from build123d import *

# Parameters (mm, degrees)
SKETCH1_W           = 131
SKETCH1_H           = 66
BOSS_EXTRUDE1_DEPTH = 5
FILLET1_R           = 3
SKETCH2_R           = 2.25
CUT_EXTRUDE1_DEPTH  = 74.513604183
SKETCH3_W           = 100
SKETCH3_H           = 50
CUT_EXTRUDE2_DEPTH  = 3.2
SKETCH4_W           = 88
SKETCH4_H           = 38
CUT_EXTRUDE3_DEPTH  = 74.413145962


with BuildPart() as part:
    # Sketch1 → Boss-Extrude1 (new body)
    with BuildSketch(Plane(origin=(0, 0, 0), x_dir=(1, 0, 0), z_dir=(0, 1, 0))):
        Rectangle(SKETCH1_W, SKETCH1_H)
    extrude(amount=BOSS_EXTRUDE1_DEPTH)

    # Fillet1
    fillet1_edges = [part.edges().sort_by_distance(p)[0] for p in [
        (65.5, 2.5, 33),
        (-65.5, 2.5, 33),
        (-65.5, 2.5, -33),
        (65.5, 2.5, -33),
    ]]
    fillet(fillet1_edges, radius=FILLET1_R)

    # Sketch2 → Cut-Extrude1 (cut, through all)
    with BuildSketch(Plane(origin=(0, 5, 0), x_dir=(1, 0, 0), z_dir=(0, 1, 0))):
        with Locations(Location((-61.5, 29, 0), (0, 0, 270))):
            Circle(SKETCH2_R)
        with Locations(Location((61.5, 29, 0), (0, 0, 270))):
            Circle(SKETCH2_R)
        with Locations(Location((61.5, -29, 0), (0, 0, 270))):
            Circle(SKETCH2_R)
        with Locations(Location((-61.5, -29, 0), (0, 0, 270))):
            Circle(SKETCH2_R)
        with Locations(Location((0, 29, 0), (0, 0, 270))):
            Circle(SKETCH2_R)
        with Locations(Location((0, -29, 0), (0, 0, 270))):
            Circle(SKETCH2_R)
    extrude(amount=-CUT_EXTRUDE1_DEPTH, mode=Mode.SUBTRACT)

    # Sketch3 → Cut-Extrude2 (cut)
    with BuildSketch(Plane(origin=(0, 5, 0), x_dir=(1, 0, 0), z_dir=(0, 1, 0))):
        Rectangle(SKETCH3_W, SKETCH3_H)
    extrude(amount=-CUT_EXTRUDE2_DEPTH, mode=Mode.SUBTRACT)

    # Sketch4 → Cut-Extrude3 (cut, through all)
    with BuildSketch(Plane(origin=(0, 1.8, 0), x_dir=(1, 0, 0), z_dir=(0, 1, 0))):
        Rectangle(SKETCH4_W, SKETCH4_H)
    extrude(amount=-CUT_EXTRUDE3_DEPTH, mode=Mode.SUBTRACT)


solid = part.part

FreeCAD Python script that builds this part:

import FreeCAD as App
import Part
import Sketcher

V = App.Vector
Q = App.Units.Quantity


def edges_at(feature, points):
    """Names of the edges that pass closest to the given points."""
    edges = feature.Shape.Edges
    near = lambda p: min(range(len(edges)), key=lambda i: edges[i].distToShape(Part.Vertex(*p))[0])
    return sorted({f"Edge{near(p) + 1}" for p in points})


def add_polygon(sketch, points):
    """Adds a closed chain of lines whose ends are joined by coincident constraints."""
    first, n = sketch.GeometryCount, len(points)
    for a, b in zip(points, points[1:] + points[:1]):
        sketch.addGeometry(Part.LineSegment(App.Vector(*a, 0), App.Vector(*b, 0)), False)
    for i in range(n):
        sketch.addConstraint(Sketcher.Constraint("Coincident", first + i, 2, first + (i + 1) % n, 1))

doc = App.newDocument("Part")
body = doc.addObject("PartDesign::Body", "Body")

# Sketch on XZ plane
sketch1 = body.newObject("Sketcher::SketchObject", "Sketch")
sketch1.AttachmentSupport = (doc.getObject("XZ_Plane"), [""])
sketch1.MapMode = "FlatFace"
add_polygon(sketch1, [(-66, -33), (-66, 33), (66, 33), (66, -33)])  # lines 0-3
sketch1.addConstraint(Sketcher.Constraint("Vertical", 0))
sketch1.addConstraint(Sketcher.Constraint("Horizontal", 1))
sketch1.addConstraint(Sketcher.Constraint("Vertical", 2))
sketch1.addConstraint(Sketcher.Constraint("Horizontal", 3))
sketch1.addConstraint(Sketcher.Constraint("Symmetric", 0, 2, 2, 2, -1, 1))
sketch1.addConstraint(Sketcher.Constraint("DistanceX", 1, 1, 1, 2, Q("131 mm")))
sketch1.addConstraint(Sketcher.Constraint("DistanceY", 0, 1, 0, 2, Q("66 mm")))
pad1 = body.newObject("PartDesign::Pad", "Pad")
pad1.Profile = sketch1
pad1.Length = 5
pad1.Reversed = True
doc.recompute()

fillet = body.newObject("PartDesign::Fillet", "Fillet")
fillet.Base = (pad1, edges_at(pad1, [
    (65.5, 2.5, 33),
    (-65.5, 2.5, 33),
    (-65.5, 2.5, -33),
    (65.5, 2.5, -33),
]))
fillet.Radius = 3

# Sketch on XZ plane
sketch2 = body.newObject("Sketcher::SketchObject", "Sketch001")
sketch2.AttachmentSupport = (doc.getObject("XZ_Plane"), [""])
sketch2.MapMode = "FlatFace"
sketch2.AttachmentOffset = App.Placement(V(0, 0, -5), App.Rotation())
sketch2.addGeometry(Part.Circle(V(-61.5, -29, 0), V(0, 0, 1), 2.2), False)
sketch2.addGeometry(Part.Circle(V(61.5, -29, 0), V(0, 0, 1), 2.2), False)
sketch2.addGeometry(Part.Circle(V(61.5, 29, 0), V(0, 0, 1), 2.2), False)
sketch2.addGeometry(Part.Circle(V(-61.5, 29, 0), V(0, 0, 1), 2.2), False)
sketch2.addGeometry(Part.Circle(V(0, -29, 0), V(0, 0, 1), 2.2), False)
sketch2.addGeometry(Part.Circle(V(0, 29, 0), V(0, 0, 1), 2.2), False)
sketch2.addConstraint(Sketcher.Constraint("Equal", 0, 1))
sketch2.addConstraint(Sketcher.Constraint("Equal", 1, 2))
sketch2.addConstraint(Sketcher.Constraint("Equal", 2, 3))
sketch2.addConstraint(Sketcher.Constraint("Equal", 3, 4))
sketch2.addConstraint(Sketcher.Constraint("Equal", 4, 5))
sketch2.addConstraint(Sketcher.Constraint("Symmetric", 0, 3, 2, 3, -1, 1))
sketch2.addConstraint(Sketcher.Constraint("Symmetric", 1, 3, 3, 3, -1, 1))
sketch2.addConstraint(Sketcher.Constraint("Symmetric", 4, 3, 5, 3, -1, 1))
sketch2.addConstraint(Sketcher.Constraint("Symmetric", 0, 3, 1, 3, -2))
sketch2.addConstraint(Sketcher.Constraint("PointOnObject", 4, 3, -2))
sketch2.addConstraint(Sketcher.Constraint("Horizontal", 1, 3, 4, 3))
sketch2.addConstraint(Sketcher.Constraint("Diameter", 0, Q("4.5 mm")))
sketch2.addConstraint(Sketcher.Constraint("DistanceY", 0, 3, -1, 1, Q("29 mm")))
sketch2.addConstraint(Sketcher.Constraint("DistanceX", 0, 3, 1, 3, Q("123 mm")))
pocket1 = body.newObject("PartDesign::Pocket", "Pocket")
pocket1.Profile = sketch2
pocket1.Type = "ThroughAll"
pocket1.Reversed = True

# Sketch on XZ plane
sketch3 = body.newObject("Sketcher::SketchObject", "Sketch002")
sketch3.AttachmentSupport = (doc.getObject("XZ_Plane"), [""])
sketch3.MapMode = "FlatFace"
sketch3.AttachmentOffset = App.Placement(V(0, 0, -5), App.Rotation())
add_polygon(sketch3, [(-50, -25), (-50, 25), (50, 25), (50, -25)])  # lines 0-3
sketch3.addConstraint(Sketcher.Constraint("Vertical", 0))
sketch3.addConstraint(Sketcher.Constraint("Horizontal", 1))
sketch3.addConstraint(Sketcher.Constraint("Vertical", 2))
sketch3.addConstraint(Sketcher.Constraint("Horizontal", 3))
sketch3.addConstraint(Sketcher.Constraint("Symmetric", 0, 2, 2, 2, -1, 1))
sketch3.addConstraint(Sketcher.Constraint("DistanceX", 1, 1, 1, 2, Q("100 mm")))
sketch3.addConstraint(Sketcher.Constraint("DistanceY", 0, 1, 0, 2, Q("50 mm")))
pocket2 = body.newObject("PartDesign::Pocket", "Pocket001")
pocket2.Profile = sketch3
pocket2.Length = 3.2
pocket2.Reversed = True

# Sketch on XZ plane
sketch4 = body.newObject("Sketcher::SketchObject", "Sketch003")
sketch4.AttachmentSupport = (doc.getObject("XZ_Plane"), [""])
sketch4.MapMode = "FlatFace"
sketch4.AttachmentOffset = App.Placement(V(0, 0, -1.8), App.Rotation())
add_polygon(sketch4, [(-44, -19), (-44, 19), (44, 19), (44, -19)])  # lines 0-3
sketch4.addConstraint(Sketcher.Constraint("Vertical", 0))
sketch4.addConstraint(Sketcher.Constraint("Horizontal", 1))
sketch4.addConstraint(Sketcher.Constraint("Vertical", 2))
sketch4.addConstraint(Sketcher.Constraint("Horizontal", 3))
sketch4.addConstraint(Sketcher.Constraint("Symmetric", 0, 2, 2, 2, -1, 1))
sketch4.addConstraint(Sketcher.Constraint("DistanceX", 1, 1, 1, 2, Q("88 mm")))
sketch4.addConstraint(Sketcher.Constraint("DistanceY", 0, 1, 0, 2, Q("38 mm")))
pocket3 = body.newObject("PartDesign::Pocket", "Pocket002")
pocket3.Profile = sketch4
pocket3.Type = "ThroughAll"
pocket3.Reversed = True

doc.recompute()
